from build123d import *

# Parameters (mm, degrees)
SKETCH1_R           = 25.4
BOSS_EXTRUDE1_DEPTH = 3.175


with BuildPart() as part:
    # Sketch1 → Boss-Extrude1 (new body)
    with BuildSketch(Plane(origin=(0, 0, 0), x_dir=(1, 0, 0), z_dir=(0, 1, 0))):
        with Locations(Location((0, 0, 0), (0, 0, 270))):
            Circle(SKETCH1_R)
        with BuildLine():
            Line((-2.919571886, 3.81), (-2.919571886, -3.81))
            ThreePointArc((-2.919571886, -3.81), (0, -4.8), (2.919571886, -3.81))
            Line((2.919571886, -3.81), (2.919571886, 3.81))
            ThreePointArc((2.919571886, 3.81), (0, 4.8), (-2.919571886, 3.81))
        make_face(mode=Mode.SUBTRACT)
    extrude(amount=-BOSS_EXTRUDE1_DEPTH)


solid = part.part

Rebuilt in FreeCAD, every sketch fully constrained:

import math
import FreeCAD as App
import Part
import Sketcher
Q = App.Units.Quantity

doc = App.newDocument("Part")
body = doc.addObject("PartDesign::Body", "Body")

# Sketch on XZ plane
sketch1 = doc.addObject("Sketcher::SketchObject", "Sketch")
body.addObject(sketch1)
sketch1.AttachmentSupport = (doc.XZ_Plane, [""])
sketch1.MapMode = "FlatFace"
sketch1.addGeometry([
    Part.Circle(App.Vector(0, 0, 0), App.Vector(0, 0, 1), 25.4),  # 0
    Part.LineSegment(App.Vector(-2.9, 3.8, 0), App.Vector(-2.9, -3.8, 0)),  # 1
    Part.ArcOfCircle(Part.Circle(App.Vector(0, 0, 0), App.Vector(0, 0, 1), 4.8), math.radians(-127), math.radians(-53)),  # 2
    Part.LineSegment(App.Vector(2.9, -3.8, 0), App.Vector(2.9, 3.8, 0)),  # 3
    Part.ArcOfCircle(Part.Circle(App.Vector(0, 0, 0), App.Vector(0, 0, 1), 4.8), math.radians(53), math.radians(127)),  # 4
], False)
sketch1.addConstraint([
    Sketcher.Constraint("Coincident", 1, 2, 2, 1),
    Sketcher.Constraint("Coincident", 2, 2, 3, 1),
    Sketcher.Constraint("Coincident", 3, 2, 4, 1),
    Sketcher.Constraint("Coincident", 4, 2, 1, 1),
    Sketcher.Constraint("Vertical", 1),
    Sketcher.Constraint("Vertical", 3),
    Sketcher.Constraint("Coincident", 0, 3, -1, 1),
    Sketcher.Constraint("Coincident", 2, 3, -1, 1),
    Sketcher.Constraint("Coincident", 4, 3, -1, 1),
    Sketcher.Constraint("Equal", 2, 4),
    Sketcher.Constraint("Horizontal", 1, 2, 2, 2),
    Sketcher.Constraint("Diameter", 0, Q("2 in")),
    Sketcher.Constraint("DistanceY", 1, 2, 1, 1, Q("0.3 in")),
    Sketcher.Constraint("Radius", 2, Q("4.8 mm")),
])
pad1 = doc.addObject("PartDesign::Pad", "Pad")
body.addObject(pad1)
pad1.Profile = sketch1
pad1.Length = Q("0.125 in")

doc.recompute()
